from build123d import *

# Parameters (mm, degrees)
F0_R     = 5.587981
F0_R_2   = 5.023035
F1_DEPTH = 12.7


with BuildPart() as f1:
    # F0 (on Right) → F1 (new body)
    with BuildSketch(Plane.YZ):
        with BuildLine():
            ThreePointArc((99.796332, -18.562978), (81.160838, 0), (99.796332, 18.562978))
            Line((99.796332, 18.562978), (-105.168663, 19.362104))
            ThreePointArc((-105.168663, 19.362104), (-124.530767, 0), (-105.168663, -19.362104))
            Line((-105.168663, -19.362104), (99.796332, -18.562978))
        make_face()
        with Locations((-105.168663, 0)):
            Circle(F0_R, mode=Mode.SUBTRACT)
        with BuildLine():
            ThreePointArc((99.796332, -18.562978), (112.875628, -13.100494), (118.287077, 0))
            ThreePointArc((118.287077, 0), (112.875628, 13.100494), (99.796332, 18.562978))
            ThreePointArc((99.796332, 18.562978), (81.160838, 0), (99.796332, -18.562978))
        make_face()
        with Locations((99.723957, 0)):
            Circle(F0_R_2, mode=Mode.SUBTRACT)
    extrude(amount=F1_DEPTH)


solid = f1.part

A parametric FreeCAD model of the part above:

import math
import FreeCAD as App
import Part
import Sketcher
Q = App.Units.Quantity

doc = App.newDocument("Part")
body = doc.addObject("PartDesign::Body", "Body")

# Sketch on YZ plane
sketch1 = body.newObject("Sketcher::SketchObject", "Sketch")
sketch1.AttachmentSupport = (doc.getObject("YZ_Plane"), [""])
sketch1.MapMode = "FlatFace"
sketch1.addGeometry([
    Part.LineSegment(App.Vector(-105.168663, -19.362104, 0), App.Vector(99.796332, -18.562978, 0)),  # 0
    Part.ArcOfCircle(Part.Circle(App.Vector(99.723957, 0.000001, 0), App.Vector(0, 0, 1), 18.56312), math.radians(-89.77661), math.radians(-0.000004)),  # 1
    Part.ArcOfCircle(Part.Circle(App.Vector(99.723957, -0.000001, 0), App.Vector(0, 0, 1), 18.56312), math.radians(0.000004), math.radians(89.77661)),  # 2
    Part.LineSegment(App.Vector(99.796332, 18.562978, 0), App.Vector(-105.168663, 19.362104, 0)),  # 3
    Part.ArcOfCircle(Part.Circle(App.Vector(-105.168663, 0, 0), App.Vector(0, 0, 1), 19.362104), math.radians(90), math.radians(270)),  # 4
    Part.Circle(App.Vector(-105.168663, 0, 0), App.Vector(0, 0, 1), 5.587981),  # 5
    Part.Circle(App.Vector(99.723957, 0, 0), App.Vector(0, 0, 1), 5.023035),  # 6
], False)
sketch1.addConstraint([
    Sketcher.Constraint("Tangent", 0, 2, 1, 1),
    Sketcher.Constraint("Tangent", 1, 2, 2, 1),
    Sketcher.Constraint("Tangent", 2, 2, 3, 1),
    Sketcher.Constraint("Coincident", 3, 2, 4, 1),
    Sketcher.Constraint("Coincident", 4, 2, 0, 1),
    Sketcher.Constraint("Coincident", 5, 3, 4, 3),
    Sketcher.Constraint("Coincident", 6, 3, 1, 3),
    Sketcher.Constraint("Equal", 1, 2),
    Sketcher.Constraint("Symmetric", 0, 2, 2, 2, -1),
    Sketcher.Constraint("PointOnObject", 4, 3, -1),
    Sketcher.Constraint("PointOnObject", 1, 2, -1),
    Sketcher.Constraint("Vertical", 5, 3, 3, 2),
    Sketcher.Constraint("Diameter", 6, Q("10.04607 mm")),
    Sketcher.Constraint("Radius", 1, Q("18.56312 mm")),
    Sketcher.Constraint("Diameter", 5, Q("11.175962 mm")),
    Sketcher.Constraint("Radius", 4, Q("19.362104 mm")),
    Sketcher.Constraint("DistanceX", -1, 1, 2, 2, Q("99.796332 mm")),
    Sketcher.Constraint("DistanceX", 4, 3, 1, 3, Q("204.89262 mm")),
])
pad1 = body.newObject("PartDesign::Pad", "Pad")
pad1.Profile = sketch1
pad1.Length = Q("0.5 in")

doc.recompute()
